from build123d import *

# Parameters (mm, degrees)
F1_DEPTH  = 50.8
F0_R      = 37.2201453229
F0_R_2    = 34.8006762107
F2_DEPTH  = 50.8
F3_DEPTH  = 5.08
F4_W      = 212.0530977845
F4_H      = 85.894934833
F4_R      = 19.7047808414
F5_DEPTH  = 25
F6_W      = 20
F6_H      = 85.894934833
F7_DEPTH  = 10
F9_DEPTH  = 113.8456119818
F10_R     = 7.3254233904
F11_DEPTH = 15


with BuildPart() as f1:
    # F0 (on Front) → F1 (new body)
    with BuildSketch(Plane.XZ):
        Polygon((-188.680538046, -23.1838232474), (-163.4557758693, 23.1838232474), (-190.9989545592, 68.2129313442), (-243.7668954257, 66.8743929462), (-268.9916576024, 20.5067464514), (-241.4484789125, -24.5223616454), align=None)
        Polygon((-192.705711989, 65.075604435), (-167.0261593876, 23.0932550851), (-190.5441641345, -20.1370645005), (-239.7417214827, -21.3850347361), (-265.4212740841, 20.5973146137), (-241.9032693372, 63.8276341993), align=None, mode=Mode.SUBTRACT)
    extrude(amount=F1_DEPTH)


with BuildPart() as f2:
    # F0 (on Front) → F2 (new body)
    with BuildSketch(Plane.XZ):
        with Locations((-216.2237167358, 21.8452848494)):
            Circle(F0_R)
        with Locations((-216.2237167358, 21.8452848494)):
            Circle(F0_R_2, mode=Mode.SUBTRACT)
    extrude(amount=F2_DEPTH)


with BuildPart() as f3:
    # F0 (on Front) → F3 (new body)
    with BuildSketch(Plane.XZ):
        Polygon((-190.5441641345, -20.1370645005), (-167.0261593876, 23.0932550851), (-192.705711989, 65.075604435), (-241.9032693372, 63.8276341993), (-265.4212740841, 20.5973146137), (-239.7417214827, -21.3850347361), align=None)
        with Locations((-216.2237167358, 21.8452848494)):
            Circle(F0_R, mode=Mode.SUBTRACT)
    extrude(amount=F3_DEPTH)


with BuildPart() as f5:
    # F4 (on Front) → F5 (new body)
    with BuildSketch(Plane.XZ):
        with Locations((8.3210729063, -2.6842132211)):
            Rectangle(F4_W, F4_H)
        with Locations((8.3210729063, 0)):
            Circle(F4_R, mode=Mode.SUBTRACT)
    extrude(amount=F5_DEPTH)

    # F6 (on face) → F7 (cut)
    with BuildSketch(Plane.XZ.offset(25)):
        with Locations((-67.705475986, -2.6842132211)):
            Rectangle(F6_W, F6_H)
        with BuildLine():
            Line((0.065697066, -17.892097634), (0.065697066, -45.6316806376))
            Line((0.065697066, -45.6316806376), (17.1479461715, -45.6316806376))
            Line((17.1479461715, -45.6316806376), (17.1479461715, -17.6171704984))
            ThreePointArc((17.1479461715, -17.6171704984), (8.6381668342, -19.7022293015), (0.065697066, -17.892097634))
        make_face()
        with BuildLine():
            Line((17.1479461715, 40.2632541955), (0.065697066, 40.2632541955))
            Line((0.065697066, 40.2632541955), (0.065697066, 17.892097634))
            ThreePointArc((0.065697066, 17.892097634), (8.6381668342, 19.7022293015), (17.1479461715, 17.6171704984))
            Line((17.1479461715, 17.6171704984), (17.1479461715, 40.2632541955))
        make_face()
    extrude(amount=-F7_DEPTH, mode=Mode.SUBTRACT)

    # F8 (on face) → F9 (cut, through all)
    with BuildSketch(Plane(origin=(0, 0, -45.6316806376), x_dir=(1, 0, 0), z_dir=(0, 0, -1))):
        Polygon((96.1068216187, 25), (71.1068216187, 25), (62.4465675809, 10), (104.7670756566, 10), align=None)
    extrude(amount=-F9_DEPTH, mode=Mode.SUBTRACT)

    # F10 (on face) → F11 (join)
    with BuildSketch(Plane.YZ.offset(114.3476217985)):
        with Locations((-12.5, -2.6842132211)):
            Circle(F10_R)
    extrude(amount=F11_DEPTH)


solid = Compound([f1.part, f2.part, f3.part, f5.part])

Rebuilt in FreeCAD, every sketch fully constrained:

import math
import FreeCAD as App
import Part
import Sketcher
from FreeCAD import Vector
Q = App.Units.Quantity

doc = App.newDocument("Part")
body = doc.addObject("PartDesign::Body", "Body")

sketch1 = body.newObject("Sketcher::SketchObject", "Sketch")
sketch1.AttachmentSupport = (doc.getObject("XZ_Plane"), [""])
sketch1.MapMode = "FlatFace"
sketch1.addGeometry([
    Part.LineSegment(Vector(-189, -23, 0), Vector(-163, 23, 0)),
    Part.LineSegment(Vector(-163, 23, 0), Vector(-191, 68, 0)),
    Part.LineSegment(Vector(-191, 68, 0), Vector(-244, 67, 0)),
    Part.LineSegment(Vector(-244, 67, 0), Vector(-269, 21, 0)),
    Part.LineSegment(Vector(-269, 21, 0), Vector(-241, -25, 0)),
    Part.LineSegment(Vector(-241, -25, 0), Vector(-189, -23, 0)),
    Part.LineSegment(Vector(-242, 64, 0), Vector(-193, 65, 0)),
    Part.LineSegment(Vector(-193, 65, 0), Vector(-167, 23, 0)),
    Part.LineSegment(Vector(-167, 23, 0), Vector(-191, -20, 0)),
    Part.LineSegment(Vector(-191, -20, 0), Vector(-240, -21, 0)),
    Part.LineSegment(Vector(-240, -21, 0), Vector(-265, 21, 0)),
    Part.LineSegment(Vector(-265, 21, 0), Vector(-242, 64, 0)),
], False)
sketch1.addConstraint([
    Sketcher.Constraint("Coincident", 0, 2, 1, 1),
    Sketcher.Constraint("Coincident", 1, 2, 2, 1),
    Sketcher.Constraint("Coincident", 2, 2, 3, 1),
    Sketcher.Constraint("Coincident", 3, 2, 4, 1),
    Sketcher.Constraint("Coincident", 4, 2, 5, 1),
    Sketcher.Constraint("Coincident", 5, 2, 0, 1),
    Sketcher.Constraint("Coincident", 6, 2, 7, 1),
    Sketcher.Constraint("Coincident", 7, 2, 8, 1),
    Sketcher.Constraint("Coincident", 8, 2, 9, 1),
    Sketcher.Constraint("Coincident", 9, 2, 10, 1),
    Sketcher.Constraint("Coincident", 10, 2, 11, 1),
    Sketcher.Constraint("Coincident", 11, 2, 6, 1),
    Sketcher.Constraint("Parallel", 0, 3),
    Sketcher.Constraint("Parallel", 1, 4),
    Sketcher.Constraint("Parallel", 2, 5),
    Sketcher.Constraint("Parallel", 5, 6),
    Sketcher.Constraint("Parallel", 4, 7),
    Sketcher.Constraint("Parallel", 3, 8),
    Sketcher.Constraint("Parallel", 6, 9),
    Sketcher.Constraint("Parallel", 7, 10),
    Sketcher.Constraint("Parallel", 8, 11),
    Sketcher.Constraint("Equal", 0, 1),
    Sketcher.Constraint("Equal", 1, 2),
    Sketcher.Constraint("Equal", 2, 3),
    Sketcher.Constraint("Equal", 6, 7),
    Sketcher.Constraint("Equal", 7, 8),
    Sketcher.Constraint("Equal", 8, 9),
    Sketcher.Constraint("DistanceY", -1, 1, 1, 2, 68.212931),
    Sketcher.Constraint("DistanceX", 4, 2, -1, 1, 241.448479),
    Sketcher.Constraint("DistanceY", 4, 2, -1, 1, 24.522362),
    Sketcher.Constraint("DistanceX", 5, 2, -1, 1, 188.680538),
    Sketcher.Constraint("DistanceX", 6, 2, -1, 1, 192.705712),
    Sketcher.Constraint("DistanceX", 7, 2, -1, 1, 167.026159),
    Sketcher.Constraint("DistanceX", 9, 2, -1, 1, 239.741721),
    Sketcher.Constraint("DistanceX", 11, 2, -1, 1, 241.903269),
    Sketcher.Constraint("DistanceY", 6, 2, 2, 2, 1.798789),
])
pad1 = body.newObject("PartDesign::Pad", "Pad")
pad1.Profile = sketch1
pad1.Length = 50.8
body2 = doc.addObject("PartDesign::Body", "Body001")

sketch2 = body2.newObject("Sketcher::SketchObject", "Sketch001")
sketch2.AttachmentSupport = (doc.getObject("XZ_Plane001"), [""])
sketch2.MapMode = "FlatFace"
sketch2.addGeometry([
    Part.Circle(Vector(-216, 22, 0), Vector(0, 0, 1), 37),
    Part.Circle(Vector(-216, 22, 0), Vector(0, 0, 1), 35),
], False)
sketch2.addConstraint([
    Sketcher.Constraint("Coincident", 1, 3, 0, 3),
    Sketcher.Constraint("Diameter", 0, 74.440291),
    Sketcher.Constraint("Diameter", 1, 69.601352),
    Sketcher.Constraint("DistanceX", 0, 3, -1, 1, 216.223717),
    Sketcher.Constraint("DistanceY", -1, 1, 0, 3, 21.845285),
])
pad2 = body2.newObject("PartDesign::Pad", "Pad001")
pad2.Profile = sketch2
pad2.Length = 50.8
body3 = doc.addObject("PartDesign::Body", "Body002")

sketch3 = body3.newObject("Sketcher::SketchObject", "Sketch002")
sketch3.AttachmentSupport = (doc.getObject("XZ_Plane002"), [""])
sketch3.MapMode = "FlatFace"
sketch3.addGeometry([
    Part.LineSegment(Vector(-191, -20, 0), Vector(-167, 23, 0)),
    Part.LineSegment(Vector(-167, 23, 0), Vector(-193, 65, 0)),
    Part.LineSegment(Vector(-193, 65, 0), Vector(-242, 64, 0)),
    Part.LineSegment(Vector(-242, 64, 0), Vector(-265, 21, 0)),
    Part.LineSegment(Vector(-265, 21, 0), Vector(-240, -21, 0)),
    Part.LineSegment(Vector(-240, -21, 0), Vector(-191, -20, 0)),
    Part.Circle(Vector(-216, 22, 0), Vector(0, 0, 1), 37),
], False)
sketch3.addConstraint([
    Sketcher.Constraint("Coincident", 0, 2, 1, 1),
    Sketcher.Constraint("Coincident", 1, 2, 2, 1),
    Sketcher.Constraint("Coincident", 2, 2, 3, 1),
    Sketcher.Constraint("Coincident", 3, 2, 4, 1),
    Sketcher.Constraint("Coincident", 4, 2, 5, 1),
    Sketcher.Constraint("Coincident", 5, 2, 0, 1),
    Sketcher.Constraint("Parallel", 0, 3),
    Sketcher.Constraint("Parallel", 1, 4),
    Sketcher.Constraint("Parallel", 2, 5),
    Sketcher.Constraint("Equal", 0, 1),
    Sketcher.Constraint("Equal", 1, 2),
    Sketcher.Constraint("Equal", 2, 3),
    Sketcher.Constraint("Diameter", 6, 74.440291),
    Sketcher.Constraint("DistanceX", 0, 2, -1, 1, 167.026159),
    Sketcher.Constraint("DistanceX", 1, 2, -1, 1, 192.705712),
    Sketcher.Constraint("DistanceX", 2, 2, -1, 1, 241.903269),
    Sketcher.Constraint("DistanceX", 4, 2, -1, 1, 239.741721),
    Sketcher.Constraint("DistanceY", 6, 3, 0, 2, 1.24797),
    Sketcher.Constraint("DistanceY", 0, 2, 1, 2, 41.982349),
    Sketcher.Constraint("DistanceX", 6, 3, -1, 1, 216.223717),
    Sketcher.Constraint("DistanceY", -1, 1, 6, 3, 21.845285),
])
pad3 = body3.newObject("PartDesign::Pad", "Pad002")
pad3.Profile = sketch3
pad3.Length = 5.08
body4 = doc.addObject("PartDesign::Body", "Body003")

sketch4 = body4.newObject("Sketcher::SketchObject", "Sketch003")
sketch4.AttachmentSupport = (doc.getObject("XZ_Plane003"), [""])
sketch4.MapMode = "FlatFace"
sketch4.addGeometry([
    Part.LineSegment(Vector(-98, 40, 0), Vector(-98, -46, 0)),
    Part.LineSegment(Vector(-98, -46, 0), Vector(114, -46, 0)),
    Part.LineSegment(Vector(114, -46, 0), Vector(114, 40, 0)),
    Part.LineSegment(Vector(114, 40, 0), Vector(-98, 40, 0)),
    Part.Circle(Vector(8, 0, 0), Vector(0, 0, 1), 20),
], False)
sketch4.addConstraint([
    Sketcher.Constraint("Coincident", 0, 2, 1, 1),
    Sketcher.Constraint("Coincident", 1, 2, 2, 1),
    Sketcher.Constraint("Coincident", 2, 2, 3, 1),
    Sketcher.Constraint("Coincident", 3, 2, 0, 1),
    Sketcher.Constraint("Vertical", 0),
    Sketcher.Constraint("Horizontal", 1),
    Sketcher.Constraint("Vertical", 2),
    Sketcher.Constraint("Horizontal", 3),
    Sketcher.Constraint("PointOnObject", 4, 3, -1),
    Sketcher.Constraint("Diameter", 4, 39.409562),
    Sketcher.Constraint("DistanceX", 1, 1, 1, 2, 212.053098),
    Sketcher.Constraint("DistanceY", 0, 2, 0, 1, 85.894935),
    Sketcher.Constraint("DistanceY", 0, 2, -1, 1, 45.631681),
    Sketcher.Constraint("DistanceX", -1, 1, 1, 2, 114.347622),
    Sketcher.Constraint("DistanceX", 0, 2, 4, 3, 106.026549),
])
pad4 = body4.newObject("PartDesign::Pad", "Pad003")
pad4.Profile = sketch4
pad4.Length = 25

sketch5 = body4.newObject("Sketcher::SketchObject", "Sketch004")
sketch5.AttachmentSupport = (doc.getObject("XZ_Plane003"), [""])
sketch5.MapMode = "FlatFace"
sketch5.AttachmentOffset = App.Placement(Vector(0, 0, 25), App.Rotation())
sketch5.addGeometry([
    Part.LineSegment(Vector(-78, 40, 0), Vector(-78, -46, 0)),
    Part.LineSegment(Vector(-78, -46, 0), Vector(-58, -46, 0)),
    Part.LineSegment(Vector(-58, -46, 0), Vector(-58, 40, 0)),
    Part.LineSegment(Vector(-58, 40, 0), Vector(-78, 40, 0)),
    Part.LineSegment(Vector(0, -18, 0), Vector(0, -46, 0)),
    Part.LineSegment(Vector(0, -46, 0), Vector(17, -46, 0)),
    Part.LineSegment(Vector(17, -46, 0), Vector(17, -18, 0)),
    Part.ArcOfCircle(Part.Circle(Vector(8, 0, 0), Vector(0, 0, 1), 20), math.radians(-115), math.radians(-63)),
    Part.LineSegment(Vector(17, 40, 0), Vector(0, 40, 0)),
    Part.LineSegment(Vector(0, 40, 0), Vector(0, 18, 0)),
    Part.ArcOfCircle(Part.Circle(Vector(8, 0, 0), Vector(0, 0, 1), 20), math.radians(63), math.radians(115)),
    Part.LineSegment(Vector(17, 18, 0), Vector(17, 40, 0)),
], False)
sketch5.addConstraint([
    Sketcher.Constraint("Coincident", 0, 2, 1, 1),
    Sketcher.Constraint("Coincident", 1, 2, 2, 1),
    Sketcher.Constraint("Coincident", 2, 2, 3, 1),
    Sketcher.Constraint("Coincident", 3, 2, 0, 1),
    Sketcher.Constraint("Coincident", 4, 2, 5, 1),
    Sketcher.Constraint("Coincident", 5, 2, 6, 1),
    Sketcher.Constraint("Coincident", 6, 2, 7, 2),
    Sketcher.Constraint("Coincident", 7, 1, 4, 1),
    Sketcher.Constraint("Coincident", 8, 2, 9, 1),
    Sketcher.Constraint("Coincident", 9, 2, 10, 2),
    Sketcher.Constraint("Coincident", 10, 1, 11, 1),
    Sketcher.Constraint("Coincident", 11, 2, 8, 1),
    Sketcher.Constraint("Vertical", 0),
    Sketcher.Constraint("Horizontal", 1),
    Sketcher.Constraint("Vertical", 2),
    Sketcher.Constraint("Horizontal", 3),
    Sketcher.Constraint("Vertical", 4),
    Sketcher.Constraint("Horizontal", 5),
    Sketcher.Constraint("Vertical", 6),
    Sketcher.Constraint("Horizontal", 8),
    Sketcher.Constraint("Vertical", 9),
    Sketcher.Constraint("Vertical", 11),
    Sketcher.Constraint("Coincident", 10, 3, 7, 3),
    Sketcher.Constraint("Equal", 7, 10),
    Sketcher.Constraint("Symmetric", 7, 1, 9, 2, -1),
    Sketcher.Constraint("Horizontal", 1, 2, 4, 2),
    Sketcher.Constraint("Horizontal", 3, 2, 8, 2),
    Sketcher.Constraint("Vertical", 6, 2, 10, 1),
    Sketcher.Constraint("DistanceX", 1, 1, 1, 2, 20.0),
    Sketcher.Constraint("Radius", 7, 19.704781),
    Sketcher.Constraint("DistanceX", 5, 1, 5, 2, 17.082249),
    Sketcher.Constraint("DistanceY", 6, 1, 6, 2, 28.01451),
    Sketcher.Constraint("DistanceY", 0, 2, 0, 1, 85.894935),
    Sketcher.Constraint("DistanceY", 4, 2, 4, 1, 27.739583),
    Sketcher.Constraint("DistanceX", 0, 2, 7, 3, 86.026549),
    Sketcher.Constraint("DistanceX", -1, 1, 7, 3, 8.321073),
])
pocket1 = body4.newObject("PartDesign::Pocket", "Pocket")
pocket1.Profile = sketch5
pocket1.Length = 10

sketch6 = body4.newObject("Sketcher::SketchObject", "Sketch005")
sketch6.AttachmentSupport = (doc.getObject("XY_Plane003"), [""])
sketch6.MapMode = "FlatFace"
sketch6.AttachmentOffset = App.Placement(Vector(0, 0, -45.631681), App.Rotation())
sketch6.addGeometry([
    Part.LineSegment(Vector(96, -25, 0), Vector(71, -25, 0)),
    Part.LineSegment(Vector(71, -25, 0), Vector(62, -10, 0)),
    Part.LineSegment(Vector(62, -10, 0), Vector(105, -10, 0)),
    Part.LineSegment(Vector(105, -10, 0), Vector(96, -25, 0)),
], False)
sketch6.addConstraint([
    Sketcher.Constraint("Coincident", 0, 2, 1, 1),
    Sketcher.Constraint("Coincident", 1, 2, 2, 1),
    Sketcher.Constraint("Coincident", 2, 2, 3, 1),
    Sketcher.Constraint("Coincident", 3, 2, 0, 1),
    Sketcher.Constraint("Horizontal", 0),
    Sketcher.Constraint("Horizontal", 2),
    Sketcher.Constraint("Equal", 1, 3),
    Sketcher.Constraint("DistanceX", 0, 2, 0, 1, 25.0),
    Sketcher.Constraint("Angle", 1, Q("120 deg")),
    Sketcher.Constraint("DistanceY", 0, 2, -1, 1, 25.0),
    Sketcher.Constraint("DistanceY", 1, 2, -1, 1, 10.0),
    Sketcher.Constraint("DistanceX", -1, 1, 0, 2, 71.106822),
])
pocket2 = body4.newObject("PartDesign::Pocket", "Pocket001")
pocket2.Profile = sketch6
pocket2.Type = "ThroughAll"
pocket2.Reversed = True

sketch7 = body4.newObject("Sketcher::SketchObject", "Sketch006")
sketch7.AttachmentSupport = (doc.getObject("YZ_Plane003"), [""])
sketch7.MapMode = "FlatFace"
sketch7.AttachmentOffset = App.Placement(Vector(0, 0, 114.347622), App.Rotation())
sketch7.addGeometry(Part.Circle(Vector(-12, -3, 0), Vector(0, 0, 1), 7), False)
sketch7.addConstraint([
    Sketcher.Constraint("DistanceX", 0, 3, -1, 1, 12.5),
    Sketcher.Constraint("Diameter", 0, 14.650847),
    Sketcher.Constraint("DistanceY", 0, 3, -1, 1, 2.684213),
])
pad5 = body4.newObject("PartDesign::Pad", "Pad004")
pad5.Profile = sketch7
pad5.Length = 15

doc.recompute()
